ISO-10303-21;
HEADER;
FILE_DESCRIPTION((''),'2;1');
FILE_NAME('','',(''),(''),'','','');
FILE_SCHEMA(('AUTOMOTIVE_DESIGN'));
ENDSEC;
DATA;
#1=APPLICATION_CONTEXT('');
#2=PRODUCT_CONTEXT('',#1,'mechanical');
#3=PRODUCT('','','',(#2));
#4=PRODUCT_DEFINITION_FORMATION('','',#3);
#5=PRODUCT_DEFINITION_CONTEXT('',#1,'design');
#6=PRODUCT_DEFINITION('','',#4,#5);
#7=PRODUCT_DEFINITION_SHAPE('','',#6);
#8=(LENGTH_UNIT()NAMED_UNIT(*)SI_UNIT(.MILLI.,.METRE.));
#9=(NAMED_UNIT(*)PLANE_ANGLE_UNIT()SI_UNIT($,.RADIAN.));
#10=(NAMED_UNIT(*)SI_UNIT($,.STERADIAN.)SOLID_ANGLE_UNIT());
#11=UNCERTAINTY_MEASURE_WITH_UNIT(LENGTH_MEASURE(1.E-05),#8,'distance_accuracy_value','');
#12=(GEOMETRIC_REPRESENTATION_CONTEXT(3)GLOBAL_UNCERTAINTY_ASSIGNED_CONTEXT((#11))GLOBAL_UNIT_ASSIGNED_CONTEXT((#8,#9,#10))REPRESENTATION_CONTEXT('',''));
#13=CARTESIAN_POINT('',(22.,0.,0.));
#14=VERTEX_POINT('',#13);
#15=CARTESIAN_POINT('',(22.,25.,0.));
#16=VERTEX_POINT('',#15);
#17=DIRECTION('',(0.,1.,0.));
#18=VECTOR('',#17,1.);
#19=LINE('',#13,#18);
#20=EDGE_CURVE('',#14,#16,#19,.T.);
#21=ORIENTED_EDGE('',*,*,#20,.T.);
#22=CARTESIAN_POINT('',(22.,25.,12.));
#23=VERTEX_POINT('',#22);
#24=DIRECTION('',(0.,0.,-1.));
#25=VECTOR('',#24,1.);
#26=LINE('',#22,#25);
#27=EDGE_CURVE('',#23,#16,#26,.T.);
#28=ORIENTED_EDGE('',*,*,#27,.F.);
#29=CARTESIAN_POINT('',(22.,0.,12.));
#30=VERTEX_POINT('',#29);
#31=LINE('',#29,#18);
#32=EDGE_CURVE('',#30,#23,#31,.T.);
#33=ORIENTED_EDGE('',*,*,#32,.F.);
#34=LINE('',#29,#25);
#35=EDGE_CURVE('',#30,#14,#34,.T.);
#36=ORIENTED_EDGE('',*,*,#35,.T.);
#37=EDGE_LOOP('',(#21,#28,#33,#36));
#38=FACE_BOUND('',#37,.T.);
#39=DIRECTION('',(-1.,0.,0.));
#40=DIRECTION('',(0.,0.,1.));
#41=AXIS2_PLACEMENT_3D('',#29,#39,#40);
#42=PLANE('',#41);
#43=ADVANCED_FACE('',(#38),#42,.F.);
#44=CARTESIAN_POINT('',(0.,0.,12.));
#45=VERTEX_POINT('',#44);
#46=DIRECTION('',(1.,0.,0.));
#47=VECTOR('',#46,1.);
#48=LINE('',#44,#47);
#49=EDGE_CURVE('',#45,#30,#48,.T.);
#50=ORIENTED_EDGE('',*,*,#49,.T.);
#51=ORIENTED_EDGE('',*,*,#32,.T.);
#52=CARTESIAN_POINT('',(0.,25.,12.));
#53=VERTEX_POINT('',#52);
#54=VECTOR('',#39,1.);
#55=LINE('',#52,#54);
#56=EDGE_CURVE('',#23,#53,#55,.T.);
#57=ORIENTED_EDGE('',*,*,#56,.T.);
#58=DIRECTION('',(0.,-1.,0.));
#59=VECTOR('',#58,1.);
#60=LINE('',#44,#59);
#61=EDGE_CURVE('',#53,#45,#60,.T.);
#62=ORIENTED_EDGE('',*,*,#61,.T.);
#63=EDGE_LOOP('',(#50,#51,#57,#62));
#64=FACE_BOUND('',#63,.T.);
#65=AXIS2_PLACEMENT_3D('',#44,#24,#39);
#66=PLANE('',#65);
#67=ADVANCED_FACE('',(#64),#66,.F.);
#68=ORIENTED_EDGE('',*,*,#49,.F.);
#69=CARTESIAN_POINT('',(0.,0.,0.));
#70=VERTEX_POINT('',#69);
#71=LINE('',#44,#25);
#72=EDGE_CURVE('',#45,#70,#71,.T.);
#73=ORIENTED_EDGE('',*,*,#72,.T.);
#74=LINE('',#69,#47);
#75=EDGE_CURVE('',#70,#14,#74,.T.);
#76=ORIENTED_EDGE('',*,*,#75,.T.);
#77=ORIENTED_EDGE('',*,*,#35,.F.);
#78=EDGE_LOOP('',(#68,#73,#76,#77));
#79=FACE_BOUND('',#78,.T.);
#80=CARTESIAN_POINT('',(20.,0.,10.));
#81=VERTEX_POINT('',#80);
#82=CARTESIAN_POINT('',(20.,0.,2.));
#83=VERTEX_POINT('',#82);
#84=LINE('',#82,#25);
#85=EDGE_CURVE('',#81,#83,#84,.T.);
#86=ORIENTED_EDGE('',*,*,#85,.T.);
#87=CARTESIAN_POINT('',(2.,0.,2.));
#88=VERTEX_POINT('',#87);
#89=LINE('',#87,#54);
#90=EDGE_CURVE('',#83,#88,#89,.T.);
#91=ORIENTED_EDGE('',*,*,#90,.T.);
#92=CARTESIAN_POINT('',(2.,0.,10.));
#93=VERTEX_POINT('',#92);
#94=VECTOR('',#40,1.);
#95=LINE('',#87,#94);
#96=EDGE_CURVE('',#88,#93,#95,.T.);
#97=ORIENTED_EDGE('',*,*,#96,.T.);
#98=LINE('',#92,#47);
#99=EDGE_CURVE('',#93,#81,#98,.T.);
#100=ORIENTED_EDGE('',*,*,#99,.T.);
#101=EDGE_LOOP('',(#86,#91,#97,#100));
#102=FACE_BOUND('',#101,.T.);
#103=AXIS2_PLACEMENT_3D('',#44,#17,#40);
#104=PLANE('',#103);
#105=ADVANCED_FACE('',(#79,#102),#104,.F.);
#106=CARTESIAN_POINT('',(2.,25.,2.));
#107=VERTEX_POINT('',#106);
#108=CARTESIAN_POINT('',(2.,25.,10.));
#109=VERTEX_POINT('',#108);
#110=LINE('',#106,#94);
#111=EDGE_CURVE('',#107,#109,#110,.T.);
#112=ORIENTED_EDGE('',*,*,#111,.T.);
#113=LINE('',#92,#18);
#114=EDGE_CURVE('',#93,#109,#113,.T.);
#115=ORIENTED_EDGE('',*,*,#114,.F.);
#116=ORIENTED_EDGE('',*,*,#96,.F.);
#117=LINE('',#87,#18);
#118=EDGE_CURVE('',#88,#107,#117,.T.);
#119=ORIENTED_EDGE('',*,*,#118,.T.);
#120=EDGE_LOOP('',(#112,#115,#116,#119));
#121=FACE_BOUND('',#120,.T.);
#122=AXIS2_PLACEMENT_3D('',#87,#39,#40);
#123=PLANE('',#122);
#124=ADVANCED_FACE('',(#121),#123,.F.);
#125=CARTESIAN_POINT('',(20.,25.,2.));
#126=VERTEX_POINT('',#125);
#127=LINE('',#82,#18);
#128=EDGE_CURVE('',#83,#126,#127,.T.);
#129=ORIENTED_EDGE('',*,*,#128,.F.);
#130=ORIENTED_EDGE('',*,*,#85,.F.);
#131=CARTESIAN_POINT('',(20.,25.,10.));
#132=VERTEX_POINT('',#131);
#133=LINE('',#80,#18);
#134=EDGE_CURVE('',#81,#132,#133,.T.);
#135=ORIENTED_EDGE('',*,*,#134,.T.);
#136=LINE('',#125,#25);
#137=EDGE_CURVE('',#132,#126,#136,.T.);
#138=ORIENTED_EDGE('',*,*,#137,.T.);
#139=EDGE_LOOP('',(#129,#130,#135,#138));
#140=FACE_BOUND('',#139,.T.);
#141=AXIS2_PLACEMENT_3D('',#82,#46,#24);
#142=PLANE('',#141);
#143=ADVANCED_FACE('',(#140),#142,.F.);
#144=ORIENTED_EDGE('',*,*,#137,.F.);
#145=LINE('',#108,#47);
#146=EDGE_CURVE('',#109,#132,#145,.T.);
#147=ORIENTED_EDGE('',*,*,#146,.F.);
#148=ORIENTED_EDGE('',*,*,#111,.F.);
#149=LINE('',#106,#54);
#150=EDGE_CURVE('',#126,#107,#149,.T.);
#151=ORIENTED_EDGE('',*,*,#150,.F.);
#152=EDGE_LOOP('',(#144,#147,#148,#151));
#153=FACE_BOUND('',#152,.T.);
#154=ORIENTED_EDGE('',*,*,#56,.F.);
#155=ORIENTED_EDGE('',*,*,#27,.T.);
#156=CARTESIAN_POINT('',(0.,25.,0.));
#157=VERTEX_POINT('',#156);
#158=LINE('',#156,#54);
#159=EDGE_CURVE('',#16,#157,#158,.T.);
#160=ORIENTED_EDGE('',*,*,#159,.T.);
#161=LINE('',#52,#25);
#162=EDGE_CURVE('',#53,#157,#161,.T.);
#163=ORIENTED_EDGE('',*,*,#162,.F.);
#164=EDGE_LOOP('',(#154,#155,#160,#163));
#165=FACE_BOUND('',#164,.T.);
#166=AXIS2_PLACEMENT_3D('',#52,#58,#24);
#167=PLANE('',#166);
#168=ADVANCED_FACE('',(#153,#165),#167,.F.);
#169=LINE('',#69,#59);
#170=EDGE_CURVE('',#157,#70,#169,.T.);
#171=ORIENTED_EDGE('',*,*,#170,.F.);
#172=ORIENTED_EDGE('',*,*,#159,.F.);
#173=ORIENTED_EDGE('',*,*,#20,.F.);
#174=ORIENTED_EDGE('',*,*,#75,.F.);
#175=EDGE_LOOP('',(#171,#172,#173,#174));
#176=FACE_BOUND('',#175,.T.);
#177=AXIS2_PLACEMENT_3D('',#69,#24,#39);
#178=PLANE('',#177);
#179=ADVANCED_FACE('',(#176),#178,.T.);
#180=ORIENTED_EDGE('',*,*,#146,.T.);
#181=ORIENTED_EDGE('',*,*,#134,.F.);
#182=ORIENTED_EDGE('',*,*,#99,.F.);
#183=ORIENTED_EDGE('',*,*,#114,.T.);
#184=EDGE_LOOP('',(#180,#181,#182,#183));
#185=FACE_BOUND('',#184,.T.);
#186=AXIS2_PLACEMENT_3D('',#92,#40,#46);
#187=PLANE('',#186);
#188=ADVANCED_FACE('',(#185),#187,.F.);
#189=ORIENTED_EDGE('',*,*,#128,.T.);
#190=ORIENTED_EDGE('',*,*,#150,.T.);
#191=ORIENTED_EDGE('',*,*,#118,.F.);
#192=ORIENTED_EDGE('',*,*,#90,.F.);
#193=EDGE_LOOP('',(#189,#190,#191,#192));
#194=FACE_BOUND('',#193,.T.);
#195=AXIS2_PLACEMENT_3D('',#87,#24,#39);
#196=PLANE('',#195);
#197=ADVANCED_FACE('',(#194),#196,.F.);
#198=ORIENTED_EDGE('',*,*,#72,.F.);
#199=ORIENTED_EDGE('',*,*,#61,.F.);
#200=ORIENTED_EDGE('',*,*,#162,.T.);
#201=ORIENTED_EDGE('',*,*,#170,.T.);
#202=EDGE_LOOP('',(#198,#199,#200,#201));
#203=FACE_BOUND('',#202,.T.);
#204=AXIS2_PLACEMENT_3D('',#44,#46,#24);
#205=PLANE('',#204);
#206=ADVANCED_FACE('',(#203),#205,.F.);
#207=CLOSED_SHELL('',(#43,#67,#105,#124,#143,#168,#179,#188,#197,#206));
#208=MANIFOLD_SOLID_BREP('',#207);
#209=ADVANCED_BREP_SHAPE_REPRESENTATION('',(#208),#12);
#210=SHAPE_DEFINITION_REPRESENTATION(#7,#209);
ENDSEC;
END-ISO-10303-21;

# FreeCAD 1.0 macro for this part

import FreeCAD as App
import Part
import Sketcher

V = App.Vector
Q = App.Units.Quantity

doc = App.newDocument("Part")
params = doc.addObject("Spreadsheet::Sheet", "Params")
for row, (alias, value) in enumerate([
    ("sketch1_width", "22 mm"),
    ("sketch1_height", "25 mm"),
    ("pad1_length", "12 mm"),
    ("sketch2_width", "18 mm"),
    ("sketch2_height", "8 mm"),
    ("pocket1_length", "25 mm"),
], start=1):
    params.set(f"A{row}", alias)
    params.set(f"B{row}", "=" + value)
    params.setAlias(f"B{row}", alias)

body = doc.addObject("PartDesign::Body", "Body")

# Sketch on XY plane
sketch1 = body.newObject("Sketcher::SketchObject", "Sketch")
sketch1.AttachmentSupport = (doc.getObject("XY_Plane"), [""])
sketch1.MapMode = "FlatFace"
sketch1.addGeometry([
    Part.LineSegment(V(0, 25, 0), V(0, 0, 0)),
    Part.LineSegment(V(0, 0, 0), V(22, 0, 0)),
    Part.LineSegment(V(22, 0, 0), V(22, 25, 0)),
    Part.LineSegment(V(22, 25, 0), V(0, 25, 0)),
], False)
sketch1.addConstraint([
    Sketcher.Constraint("Coincident", 0, 2, 1, 1),
    Sketcher.Constraint("Coincident", 1, 2, 2, 1),
    Sketcher.Constraint("Coincident", 2, 2, 3, 1),
    Sketcher.Constraint("Coincident", 3, 2, 0, 1),
    Sketcher.Constraint("Vertical", 0),
    Sketcher.Constraint("Horizontal", 1),
    Sketcher.Constraint("Vertical", 2),
    Sketcher.Constraint("Horizontal", 3),
    Sketcher.Constraint("Coincident", 0, 2, -1, 1),
    Sketcher.Constraint("DistanceX", 1, 1, 1, 2, Q("22 mm")),
    Sketcher.Constraint("DistanceY", 0, 2, 0, 1, Q("25 mm")),
])
sketch1.setExpression("Constraints[9]", "Params.sketch1_width")
sketch1.setExpression("Constraints[10]", "Params.sketch1_height")
pad1 = body.newObject("PartDesign::Pad", "Pad")
pad1.Profile = sketch1
pad1.setExpression("Length", "Params.pad1_length")

# Sketch on XZ plane
sketch2 = body.newObject("Sketcher::SketchObject", "Sketch001")
sketch2.AttachmentSupport = (doc.getObject("XZ_Plane"), [""])
sketch2.MapMode = "FlatFace"
sketch2.AttachmentOffset = App.Placement(V(0, 0, -25), App.Rotation())
sketch2.addGeometry([
    Part.LineSegment(V(2, 2, 0), V(2, 10, 0)),
    Part.LineSegment(V(2, 10, 0), V(20, 10, 0)),
    Part.LineSegment(V(20, 10, 0), V(20, 2, 0)),
    Part.LineSegment(V(20, 2, 0), V(2, 2, 0)),
], False)
sketch2.addConstraint([
    Sketcher.Constraint("Coincident", 0, 2, 1, 1),
    Sketcher.Constraint("Coincident", 1, 2, 2, 1),
    Sketcher.Constraint("Coincident", 2, 2, 3, 1),
    Sketcher.Constraint("Coincident", 3, 2, 0, 1),
    Sketcher.Constraint("Vertical", 0),
    Sketcher.Constraint("Horizontal", 1),
    Sketcher.Constraint("Vertical", 2),
    Sketcher.Constraint("Horizontal", 3),
    Sketcher.Constraint("DistanceX", 1, 1, 1, 2, Q("18 mm")),
    Sketcher.Constraint("DistanceY", 0, 1, 0, 2, Q("8 mm")),
    Sketcher.Constraint("DistanceX", -1, 1, 0, 2, Q("2 mm")),
    Sketcher.Constraint("DistanceY", -1, 1, 0, 2, Q("10 mm")),
])
sketch2.setExpression("Constraints[8]", "Params.sketch2_width")
sketch2.setExpression("Constraints[9]", "Params.sketch2_height")
pocket1 = body.newObject("PartDesign::Pocket", "Pocket")
pocket1.Profile = sketch2
pocket1.setExpression("Length", "Params.pocket1_length")
pocket1.Reversed = True

doc.recompute()
